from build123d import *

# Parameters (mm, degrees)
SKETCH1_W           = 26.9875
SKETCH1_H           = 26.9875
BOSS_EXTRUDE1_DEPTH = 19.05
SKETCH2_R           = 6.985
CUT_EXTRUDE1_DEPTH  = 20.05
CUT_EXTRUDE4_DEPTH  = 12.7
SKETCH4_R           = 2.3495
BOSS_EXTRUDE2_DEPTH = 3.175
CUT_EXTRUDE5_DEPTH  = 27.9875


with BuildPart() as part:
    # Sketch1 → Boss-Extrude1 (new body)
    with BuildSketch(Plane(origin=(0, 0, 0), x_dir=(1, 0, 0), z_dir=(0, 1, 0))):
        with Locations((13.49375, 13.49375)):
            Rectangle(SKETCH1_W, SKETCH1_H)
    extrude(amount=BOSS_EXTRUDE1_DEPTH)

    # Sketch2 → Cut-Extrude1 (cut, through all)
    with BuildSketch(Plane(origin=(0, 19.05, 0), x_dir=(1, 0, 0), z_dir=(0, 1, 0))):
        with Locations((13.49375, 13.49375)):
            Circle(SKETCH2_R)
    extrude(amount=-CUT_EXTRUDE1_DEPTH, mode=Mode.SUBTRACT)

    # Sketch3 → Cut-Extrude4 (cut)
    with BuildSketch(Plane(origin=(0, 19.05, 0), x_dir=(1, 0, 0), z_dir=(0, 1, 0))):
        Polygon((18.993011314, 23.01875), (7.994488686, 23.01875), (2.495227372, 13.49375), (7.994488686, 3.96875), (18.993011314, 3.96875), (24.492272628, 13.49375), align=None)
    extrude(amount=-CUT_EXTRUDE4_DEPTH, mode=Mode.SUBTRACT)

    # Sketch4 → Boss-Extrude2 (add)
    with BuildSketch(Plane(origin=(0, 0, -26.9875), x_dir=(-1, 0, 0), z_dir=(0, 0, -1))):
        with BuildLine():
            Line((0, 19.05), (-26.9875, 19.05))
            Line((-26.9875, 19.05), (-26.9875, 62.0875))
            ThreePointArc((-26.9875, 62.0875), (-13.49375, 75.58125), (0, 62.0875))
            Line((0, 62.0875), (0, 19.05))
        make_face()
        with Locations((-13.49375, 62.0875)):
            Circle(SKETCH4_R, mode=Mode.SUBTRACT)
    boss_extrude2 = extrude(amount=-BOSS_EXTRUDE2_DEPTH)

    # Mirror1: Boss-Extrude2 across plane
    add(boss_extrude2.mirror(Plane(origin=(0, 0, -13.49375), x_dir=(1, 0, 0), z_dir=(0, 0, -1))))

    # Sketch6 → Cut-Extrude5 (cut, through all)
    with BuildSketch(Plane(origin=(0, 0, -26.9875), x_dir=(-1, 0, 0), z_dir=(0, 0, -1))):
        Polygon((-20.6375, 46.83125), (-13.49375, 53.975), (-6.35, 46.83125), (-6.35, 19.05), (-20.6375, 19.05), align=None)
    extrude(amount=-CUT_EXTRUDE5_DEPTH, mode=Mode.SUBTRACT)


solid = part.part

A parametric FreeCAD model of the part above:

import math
import FreeCAD as App
import Part
import Sketcher
Q = App.Units.Quantity

doc = App.newDocument("Part")
params = doc.addObject("Spreadsheet::Sheet", "Params")
for row, (alias, value) in enumerate([
    ("sketch1_width", "1.0625 in"),
    ("pad1_length", "0.75 in"),
    ("sketch2_diameter", "0.55 in"),
    ("pocket2_length", "0.5 in"),
    ("sketch4_diameter", "0.185 in"),
    ("sketch4_radius", "0.53125 in"),
    ("pad2_length", "0.125 in"),
    ("sketch5_width", "0.5625 in"),
    ("sketch5_height", "1.09375 in"),
], start=1):
    params.set(f"A{row}", alias)
    params.set(f"B{row}", "=" + value)
    params.setAlias(f"B{row}", alias)

body = doc.addObject("PartDesign::Body", "Body")

# Sketch on XZ plane
sketch1 = doc.addObject("Sketcher::SketchObject", "Sketch")
body.addObject(sketch1)
sketch1.AttachmentSupport = (doc.XZ_Plane, [""])
sketch1.MapMode = "FlatFace"
sketch1.addGeometry([
    Part.LineSegment(App.Vector(0, -26.9875, 0), App.Vector(0, 0, 0)),
    Part.LineSegment(App.Vector(0, 0, 0), App.Vector(26.9875, 0, 0)),
    Part.LineSegment(App.Vector(26.9875, 0, 0), App.Vector(26.9875, -26.9875, 0)),
    Part.LineSegment(App.Vector(26.9875, -26.9875, 0), App.Vector(0, -26.9875, 0)),
], False)
sketch1.addConstraint([
    Sketcher.Constraint("Coincident", 0, 2, 1, 1),
    Sketcher.Constraint("Coincident", 1, 2, 2, 1),
    Sketcher.Constraint("Coincident", 2, 2, 3, 1),
    Sketcher.Constraint("Coincident", 3, 2, 0, 1),
    Sketcher.Constraint("Vertical", 0),
    Sketcher.Constraint("Horizontal", 1),
    Sketcher.Constraint("Vertical", 2),
    Sketcher.Constraint("Horizontal", 3),
    Sketcher.Constraint("Coincident", 0, 2, -1, 1),
    Sketcher.Constraint("Equal", 3, 0),
    Sketcher.Constraint("DistanceX", 1, 1, 1, 2, Q("1.0625 in")),
])
sketch1.setExpression("Constraints[10]", "Params.sketch1_width")
pad1 = doc.addObject("PartDesign::Pad", "Pad")
body.addObject(pad1)
pad1.Profile = sketch1
pad1.setExpression("Length", "Params.pad1_length")
pad1.Reversed = True

# Sketch on XZ plane
sketch2 = doc.addObject("Sketcher::SketchObject", "Sketch001")
body.addObject(sketch2)
sketch2.AttachmentSupport = (doc.XZ_Plane, [""])
sketch2.MapMode = "FlatFace"
sketch2.AttachmentOffset = App.Placement(App.Vector(0, 0, -0.75 * 25.4), App.Rotation())
sketch2.addGeometry(Part.Circle(App.Vector(13.49375, -13.49375, 0), App.Vector(0, 0, 1), 6.985), False)
sketch2.addConstraint([
    Sketcher.Constraint("Diameter", 0, Q("0.55 in")),
    Sketcher.Constraint("DistanceX", -1, 1, 0, 3, Q("0.53125 in")),
    Sketcher.Constraint("DistanceY", 0, 3, -1, 1, Q("0.53125 in")),
])
sketch2.setExpression("Constraints[0]", "Params.sketch2_diameter")
pocket1 = doc.addObject("PartDesign::Pocket", "Pocket")
body.addObject(pocket1)
pocket1.Profile = sketch2
pocket1.Type = "ThroughAll"
pocket1.Reversed = True

# Sketch on XZ plane
sketch3 = doc.addObject("Sketcher::SketchObject", "Sketch002")
body.addObject(sketch3)
sketch3.AttachmentSupport = (doc.XZ_Plane, [""])
sketch3.MapMode = "FlatFace"
sketch3.AttachmentOffset = App.Placement(App.Vector(0, 0, -0.75 * 25.4), App.Rotation())
sketch3.addGeometry([
    Part.LineSegment(App.Vector(18.993011, -23.01875, 0), App.Vector(7.994489, -23.01875, 0)),  # 0
    Part.LineSegment(App.Vector(7.994489, -23.01875, 0), App.Vector(2.495227, -13.49375, 0)),  # 1
    Part.LineSegment(App.Vector(2.495227, -13.49375, 0), App.Vector(7.994489, -3.96875, 0)),  # 2
    Part.LineSegment(App.Vector(7.994489, -3.96875, 0), App.Vector(18.993011, -3.96875, 0)),  # 3
    Part.LineSegment(App.Vector(18.993011, -3.96875, 0), App.Vector(24.492273, -13.49375, 0)),  # 4
    Part.LineSegment(App.Vector(24.492273, -13.49375, 0), App.Vector(18.993011, -23.01875, 0)),  # 5
], False)
sketch3.addConstraint([
    Sketcher.Constraint("Coincident", 0, 2, 1, 1),
    Sketcher.Constraint("Coincident", 1, 2, 2, 1),
    Sketcher.Constraint("Coincident", 2, 2, 3, 1),
    Sketcher.Constraint("Coincident", 3, 2, 4, 1),
    Sketcher.Constraint("Coincident", 4, 2, 5, 1),
    Sketcher.Constraint("Coincident", 5, 2, 0, 1),
    Sketcher.Constraint("Horizontal", 0),
    Sketcher.Constraint("Horizontal", 3),
    Sketcher.Constraint("Parallel", 1, 4),
    Sketcher.Constraint("Parallel", 2, 5),
    Sketcher.Constraint("Horizontal", 1, 2, 4, 2),
    Sketcher.Constraint("Vertical", 0, 2, 2, 2),
    Sketcher.Constraint("Vertical", 3, 2, 5, 2),
    Sketcher.Constraint("Angle", 1, Q("120 deg")),
    Sketcher.Constraint("DistanceY", 0, 2, 2, 2, Q("0.75 in")),
    Sketcher.Constraint("DistanceY", 0, 2, -1, 1, Q("0.90625 in")),
    Sketcher.Constraint("DistanceX", 0, 2, 0, 1, Q("10.998523 mm")),
    Sketcher.Constraint("DistanceX", -1, 1, 0, 2, Q("7.994489 mm")),
])
pocket2 = doc.addObject("PartDesign::Pocket", "Pocket001")
body.addObject(pocket2)
pocket2.Profile = sketch3
pocket2.setExpression("Length", "Params.pocket2_length")
pocket2.Reversed = True

# Sketch on XY plane
sketch4 = doc.addObject("Sketcher::SketchObject", "Sketch003")
body.addObject(sketch4)
sketch4.AttachmentSupport = (doc.XY_Plane, [""])
sketch4.MapMode = "FlatFace"
sketch4.AttachmentOffset = App.Placement(App.Vector(0, 0, -1.0625 * 25.4), App.Rotation())
sketch4.addGeometry([
    Part.LineSegment(App.Vector(26.9875, 19.05, 0), App.Vector(0, 19.05, 0)),  # 0
    Part.LineSegment(App.Vector(0, 19.05, 0), App.Vector(0, 62.0875, 0)),  # 1
    Part.ArcOfCircle(Part.Circle(App.Vector(13.49375, 62.0875, 0), App.Vector(0, 0, 1), 13.49375), math.radians(0), math.radians(180)),  # 2
    Part.LineSegment(App.Vector(26.9875, 62.0875, 0), App.Vector(26.9875, 19.05, 0)),  # 3
    Part.Circle(App.Vector(13.49375, 62.0875, 0), App.Vector(0, 0, 1), 2.3495),  # 4
], False)
sketch4.addConstraint([
    Sketcher.Constraint("Coincident", 0, 2, 1, 1),
    Sketcher.Constraint("Tangent", 1, 2, 2, 2),
    Sketcher.Constraint("Tangent", 2, 1, 3, 1),
    Sketcher.Constraint("Coincident", 3, 2, 0, 1),
    Sketcher.Constraint("Horizontal", 0),
    Sketcher.Constraint("Vertical", 1),
    Sketcher.Constraint("Vertical", 3),
    Sketcher.Constraint("Coincident", 4, 3, 2, 3),
    Sketcher.Constraint("PointOnObject", 0, 2, -2),
    Sketcher.Constraint("Diameter", 4, Q("0.185 in")),
    Sketcher.Constraint("Radius", 2, Q("0.53125 in")),
    Sketcher.Constraint("DistanceY", -1, 1, 0, 2, Q("0.75 in")),
    Sketcher.Constraint("DistanceY", 1, 1, 1, 2, Q("43.0375 mm")),
])
sketch4.setExpression("Constraints[9]", "Params.sketch4_diameter")
sketch4.setExpression("Constraints[10]", "Params.sketch4_radius")
pad2 = doc.addObject("PartDesign::Pad", "Pad001")
body.addObject(pad2)
pad2.Profile = sketch4
pad2.setExpression("Length", "Params.pad2_length")
doc.recompute()

datumplane = doc.addObject("PartDesign::Plane", "DatumPlane")
body.addObject(datumplane)
datumplane.AttachmentSupport = (doc.XY_Plane, [""])
datumplane.MapMode = "FlatFace"
datumplane.AttachmentOffset = App.Placement(App.Vector(0, 0, -0.53125 * 25.4), App.Rotation())
mirrored = doc.addObject("PartDesign::Mirrored", "Mirrored")
body.addObject(mirrored)
mirrored.Originals = [pad2]
mirrored.MirrorPlane = (datumplane, [""])
body.Tip = mirrored

# Sketch on XY plane
sketch5 = doc.addObject("Sketcher::SketchObject", "Sketch004")
body.addObject(sketch5)
sketch5.AttachmentSupport = (doc.XY_Plane, [""])
sketch5.MapMode = "FlatFace"
sketch5.AttachmentOffset = App.Placement(App.Vector(0, 0, -1.0625 * 25.4), App.Rotation())
sketch5.addGeometry([
    Part.LineSegment(App.Vector(13.49375, 53.975, 0), App.Vector(20.6375, 46.83125, 0)),  # 0
    Part.LineSegment(App.Vector(20.6375, 46.83125, 0), App.Vector(20.6375, 19.05, 0)),  # 1
    Part.LineSegment(App.Vector(20.6375, 19.05, 0), App.Vector(6.35, 19.05, 0)),  # 2
    Part.LineSegment(App.Vector(6.35, 19.05, 0), App.Vector(6.35, 46.83125, 0)),  # 3
    Part.LineSegment(App.Vector(6.35, 46.83125, 0), App.Vector(13.49375, 53.975, 0)),  # 4
], False)
sketch5.addConstraint([
    Sketcher.Constraint("Coincident", 0, 2, 1, 1),
    Sketcher.Constraint("Coincident", 1, 2, 2, 1),
    Sketcher.Constraint("Coincident", 2, 2, 3, 1),
    Sketcher.Constraint("Coincident", 3, 2, 4, 1),
    Sketcher.Constraint("Coincident", 4, 2, 0, 1),
    Sketcher.Constraint("Vertical", 1),
    Sketcher.Constraint("Horizontal", 2),
    Sketcher.Constraint("Vertical", 3),
    Sketcher.Constraint("Perpendicular", 0, 4),
    Sketcher.Constraint("Horizontal", 0, 2, 3, 2),
    Sketcher.Constraint("Equal", 0, 4),
    Sketcher.Constraint("DistanceX", 2, 2, 2, 1, Q("0.5625 in")),
    Sketcher.Constraint("DistanceY", 1, 2, 1, 1, Q("1.09375 in")),
    Sketcher.Constraint("DistanceY", -1, 1, 1, 2, Q("0.75 in")),
    Sketcher.Constraint("DistanceX", -1, 1, 2, 2, Q("0.25 in")),
])
sketch5.setExpression("Constraints[11]", "Params.sketch5_width")
sketch5.setExpression("Constraints[12]", "Params.sketch5_height")
pocket3 = doc.addObject("PartDesign::Pocket", "Pocket002")
body.addObject(pocket3)
pocket3.Profile = sketch5
pocket3.Type = "ThroughAll"
pocket3.Reversed = True

doc.recompute()
